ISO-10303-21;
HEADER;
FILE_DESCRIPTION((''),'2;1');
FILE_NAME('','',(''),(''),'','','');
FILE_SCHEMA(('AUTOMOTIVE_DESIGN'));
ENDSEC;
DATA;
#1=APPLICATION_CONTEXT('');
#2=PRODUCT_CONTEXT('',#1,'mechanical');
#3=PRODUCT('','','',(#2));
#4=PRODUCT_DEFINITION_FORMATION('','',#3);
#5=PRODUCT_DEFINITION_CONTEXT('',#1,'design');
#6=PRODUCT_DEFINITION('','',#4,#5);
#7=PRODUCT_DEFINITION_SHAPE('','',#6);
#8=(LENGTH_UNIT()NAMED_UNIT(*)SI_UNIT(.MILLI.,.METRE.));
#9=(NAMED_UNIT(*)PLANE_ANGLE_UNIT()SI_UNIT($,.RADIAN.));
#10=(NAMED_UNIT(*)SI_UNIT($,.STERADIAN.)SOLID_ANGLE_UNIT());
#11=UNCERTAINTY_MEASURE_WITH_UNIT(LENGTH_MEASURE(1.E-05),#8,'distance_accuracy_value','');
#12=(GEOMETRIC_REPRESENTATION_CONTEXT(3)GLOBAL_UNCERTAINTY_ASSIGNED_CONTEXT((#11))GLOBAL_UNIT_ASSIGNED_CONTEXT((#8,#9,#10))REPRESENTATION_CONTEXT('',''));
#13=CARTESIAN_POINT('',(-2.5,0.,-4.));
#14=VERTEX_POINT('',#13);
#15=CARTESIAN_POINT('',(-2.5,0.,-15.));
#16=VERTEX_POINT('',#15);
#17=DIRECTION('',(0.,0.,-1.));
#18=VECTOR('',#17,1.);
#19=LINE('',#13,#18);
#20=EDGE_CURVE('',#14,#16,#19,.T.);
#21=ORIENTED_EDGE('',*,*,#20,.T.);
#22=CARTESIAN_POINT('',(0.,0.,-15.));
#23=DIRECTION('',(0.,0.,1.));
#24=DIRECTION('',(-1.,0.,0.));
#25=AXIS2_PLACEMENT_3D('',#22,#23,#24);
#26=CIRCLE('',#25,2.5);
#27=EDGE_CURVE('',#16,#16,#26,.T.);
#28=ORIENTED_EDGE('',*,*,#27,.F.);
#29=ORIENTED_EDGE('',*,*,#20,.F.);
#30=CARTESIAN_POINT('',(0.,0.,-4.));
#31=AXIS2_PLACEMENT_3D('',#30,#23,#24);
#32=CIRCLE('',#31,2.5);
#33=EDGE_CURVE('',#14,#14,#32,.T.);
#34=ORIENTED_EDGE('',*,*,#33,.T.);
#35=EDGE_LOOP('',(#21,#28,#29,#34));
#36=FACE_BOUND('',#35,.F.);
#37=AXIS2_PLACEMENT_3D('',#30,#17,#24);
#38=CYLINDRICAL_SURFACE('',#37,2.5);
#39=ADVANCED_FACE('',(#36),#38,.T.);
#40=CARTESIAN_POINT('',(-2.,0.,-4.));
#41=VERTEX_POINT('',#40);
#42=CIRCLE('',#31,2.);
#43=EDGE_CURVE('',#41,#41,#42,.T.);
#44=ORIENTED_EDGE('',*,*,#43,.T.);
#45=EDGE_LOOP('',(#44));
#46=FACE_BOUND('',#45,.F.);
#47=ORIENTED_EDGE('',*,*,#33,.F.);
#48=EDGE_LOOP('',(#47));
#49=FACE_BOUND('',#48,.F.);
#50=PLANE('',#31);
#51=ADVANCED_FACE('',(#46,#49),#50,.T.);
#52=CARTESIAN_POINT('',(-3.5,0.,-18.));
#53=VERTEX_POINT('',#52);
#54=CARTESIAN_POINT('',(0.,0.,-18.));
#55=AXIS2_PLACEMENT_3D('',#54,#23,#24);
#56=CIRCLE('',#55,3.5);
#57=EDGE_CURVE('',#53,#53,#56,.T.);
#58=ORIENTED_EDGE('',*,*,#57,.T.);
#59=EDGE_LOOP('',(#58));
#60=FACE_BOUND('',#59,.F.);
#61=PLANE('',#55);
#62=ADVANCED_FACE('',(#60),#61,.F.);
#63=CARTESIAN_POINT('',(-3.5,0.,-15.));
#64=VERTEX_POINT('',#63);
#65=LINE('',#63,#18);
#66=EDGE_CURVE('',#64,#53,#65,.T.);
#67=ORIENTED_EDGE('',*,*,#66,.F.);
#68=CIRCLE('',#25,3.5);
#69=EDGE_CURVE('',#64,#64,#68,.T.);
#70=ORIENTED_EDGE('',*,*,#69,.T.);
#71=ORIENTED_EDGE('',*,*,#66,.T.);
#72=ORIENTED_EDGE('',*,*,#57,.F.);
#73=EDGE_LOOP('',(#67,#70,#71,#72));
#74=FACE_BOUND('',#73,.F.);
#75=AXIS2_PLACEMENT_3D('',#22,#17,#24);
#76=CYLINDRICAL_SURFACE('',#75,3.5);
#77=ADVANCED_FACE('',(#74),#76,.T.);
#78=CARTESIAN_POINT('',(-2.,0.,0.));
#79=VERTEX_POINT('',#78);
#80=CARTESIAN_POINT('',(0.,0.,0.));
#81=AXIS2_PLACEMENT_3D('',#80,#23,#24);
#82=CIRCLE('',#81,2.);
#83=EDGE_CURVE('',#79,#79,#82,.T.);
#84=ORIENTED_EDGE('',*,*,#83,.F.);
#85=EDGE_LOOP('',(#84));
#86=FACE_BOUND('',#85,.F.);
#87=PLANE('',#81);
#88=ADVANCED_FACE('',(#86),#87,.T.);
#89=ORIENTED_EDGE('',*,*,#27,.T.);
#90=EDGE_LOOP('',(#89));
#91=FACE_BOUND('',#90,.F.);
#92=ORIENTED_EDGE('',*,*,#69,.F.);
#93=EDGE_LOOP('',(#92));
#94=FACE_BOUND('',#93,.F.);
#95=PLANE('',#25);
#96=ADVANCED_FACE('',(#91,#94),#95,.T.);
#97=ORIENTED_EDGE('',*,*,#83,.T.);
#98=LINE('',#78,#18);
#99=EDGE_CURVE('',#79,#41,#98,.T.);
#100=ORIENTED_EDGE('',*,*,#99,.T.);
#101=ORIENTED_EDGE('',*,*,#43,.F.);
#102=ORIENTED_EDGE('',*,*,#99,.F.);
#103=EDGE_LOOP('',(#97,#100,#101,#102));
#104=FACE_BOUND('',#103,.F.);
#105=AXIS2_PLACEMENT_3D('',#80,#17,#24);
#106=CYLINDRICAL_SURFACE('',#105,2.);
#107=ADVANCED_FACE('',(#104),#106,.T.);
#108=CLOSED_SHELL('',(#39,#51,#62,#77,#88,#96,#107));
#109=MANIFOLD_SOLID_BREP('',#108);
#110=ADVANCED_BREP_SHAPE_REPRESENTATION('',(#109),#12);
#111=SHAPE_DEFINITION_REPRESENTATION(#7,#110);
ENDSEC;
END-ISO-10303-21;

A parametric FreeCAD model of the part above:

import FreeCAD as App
import Part
import Sketcher
from FreeCAD import Vector


def add_polygon(sketch, points):
    """Adds a closed chain of lines whose ends are joined by coincident constraints."""
    first, n = sketch.GeometryCount, len(points)
    for a, b in zip(points, points[1:] + points[:1]):
        sketch.addGeometry(Part.LineSegment(App.Vector(*a, 0), App.Vector(*b, 0)), False)
    for i in range(n):
        sketch.addConstraint(Sketcher.Constraint("Coincident", first + i, 2, first + (i + 1) % n, 1))

doc = App.newDocument("Part")
body = doc.addObject("PartDesign::Body", "Body")

sketch1 = doc.addObject("Sketcher::SketchObject", "Sketch")
body.addObject(sketch1)
sketch1.AttachmentSupport = (doc.XZ_Plane, [""])
sketch1.MapMode = "FlatFace"
add_polygon(sketch1, [(-2, 0), (0, 0), (0, -18), (-3.5, -18), (-3.5, -15), (-2.5, -15), (-2.5, -4), (-2, -4)])
sketch1.addConstraint([
    Sketcher.Constraint("Horizontal", 0),
    Sketcher.Constraint("Vertical", 1),
    Sketcher.Constraint("Horizontal", 2),
    Sketcher.Constraint("Vertical", 3),
    Sketcher.Constraint("Horizontal", 4),
    Sketcher.Constraint("Vertical", 5),
    Sketcher.Constraint("Horizontal", 6),
    Sketcher.Constraint("Vertical", 7),
    Sketcher.Constraint("Coincident", 0, 2, -1, 1),
    Sketcher.Constraint("DistanceY", 3, 1, 3, 2, 3.0),
    Sketcher.Constraint("DistanceY", 5, 1, 5, 2, 11.0),
    Sketcher.Constraint("DistanceY", 7, 1, 7, 2, 4.0),
    Sketcher.Constraint("DistanceX", 0, 1, 0, 2, 2.0),
    Sketcher.Constraint("DistanceX", 4, 1, 4, 2, 1.0),
    Sketcher.Constraint("DistanceX", 2, 2, 2, 1, 3.5),
])
revolution = doc.addObject("PartDesign::Revolution", "Revolution")
body.addObject(revolution)
revolution.Profile = sketch1
revolution.ReferenceAxis = (sketch1, ["V_Axis"])
revolution.Angle = 360

doc.recompute()
